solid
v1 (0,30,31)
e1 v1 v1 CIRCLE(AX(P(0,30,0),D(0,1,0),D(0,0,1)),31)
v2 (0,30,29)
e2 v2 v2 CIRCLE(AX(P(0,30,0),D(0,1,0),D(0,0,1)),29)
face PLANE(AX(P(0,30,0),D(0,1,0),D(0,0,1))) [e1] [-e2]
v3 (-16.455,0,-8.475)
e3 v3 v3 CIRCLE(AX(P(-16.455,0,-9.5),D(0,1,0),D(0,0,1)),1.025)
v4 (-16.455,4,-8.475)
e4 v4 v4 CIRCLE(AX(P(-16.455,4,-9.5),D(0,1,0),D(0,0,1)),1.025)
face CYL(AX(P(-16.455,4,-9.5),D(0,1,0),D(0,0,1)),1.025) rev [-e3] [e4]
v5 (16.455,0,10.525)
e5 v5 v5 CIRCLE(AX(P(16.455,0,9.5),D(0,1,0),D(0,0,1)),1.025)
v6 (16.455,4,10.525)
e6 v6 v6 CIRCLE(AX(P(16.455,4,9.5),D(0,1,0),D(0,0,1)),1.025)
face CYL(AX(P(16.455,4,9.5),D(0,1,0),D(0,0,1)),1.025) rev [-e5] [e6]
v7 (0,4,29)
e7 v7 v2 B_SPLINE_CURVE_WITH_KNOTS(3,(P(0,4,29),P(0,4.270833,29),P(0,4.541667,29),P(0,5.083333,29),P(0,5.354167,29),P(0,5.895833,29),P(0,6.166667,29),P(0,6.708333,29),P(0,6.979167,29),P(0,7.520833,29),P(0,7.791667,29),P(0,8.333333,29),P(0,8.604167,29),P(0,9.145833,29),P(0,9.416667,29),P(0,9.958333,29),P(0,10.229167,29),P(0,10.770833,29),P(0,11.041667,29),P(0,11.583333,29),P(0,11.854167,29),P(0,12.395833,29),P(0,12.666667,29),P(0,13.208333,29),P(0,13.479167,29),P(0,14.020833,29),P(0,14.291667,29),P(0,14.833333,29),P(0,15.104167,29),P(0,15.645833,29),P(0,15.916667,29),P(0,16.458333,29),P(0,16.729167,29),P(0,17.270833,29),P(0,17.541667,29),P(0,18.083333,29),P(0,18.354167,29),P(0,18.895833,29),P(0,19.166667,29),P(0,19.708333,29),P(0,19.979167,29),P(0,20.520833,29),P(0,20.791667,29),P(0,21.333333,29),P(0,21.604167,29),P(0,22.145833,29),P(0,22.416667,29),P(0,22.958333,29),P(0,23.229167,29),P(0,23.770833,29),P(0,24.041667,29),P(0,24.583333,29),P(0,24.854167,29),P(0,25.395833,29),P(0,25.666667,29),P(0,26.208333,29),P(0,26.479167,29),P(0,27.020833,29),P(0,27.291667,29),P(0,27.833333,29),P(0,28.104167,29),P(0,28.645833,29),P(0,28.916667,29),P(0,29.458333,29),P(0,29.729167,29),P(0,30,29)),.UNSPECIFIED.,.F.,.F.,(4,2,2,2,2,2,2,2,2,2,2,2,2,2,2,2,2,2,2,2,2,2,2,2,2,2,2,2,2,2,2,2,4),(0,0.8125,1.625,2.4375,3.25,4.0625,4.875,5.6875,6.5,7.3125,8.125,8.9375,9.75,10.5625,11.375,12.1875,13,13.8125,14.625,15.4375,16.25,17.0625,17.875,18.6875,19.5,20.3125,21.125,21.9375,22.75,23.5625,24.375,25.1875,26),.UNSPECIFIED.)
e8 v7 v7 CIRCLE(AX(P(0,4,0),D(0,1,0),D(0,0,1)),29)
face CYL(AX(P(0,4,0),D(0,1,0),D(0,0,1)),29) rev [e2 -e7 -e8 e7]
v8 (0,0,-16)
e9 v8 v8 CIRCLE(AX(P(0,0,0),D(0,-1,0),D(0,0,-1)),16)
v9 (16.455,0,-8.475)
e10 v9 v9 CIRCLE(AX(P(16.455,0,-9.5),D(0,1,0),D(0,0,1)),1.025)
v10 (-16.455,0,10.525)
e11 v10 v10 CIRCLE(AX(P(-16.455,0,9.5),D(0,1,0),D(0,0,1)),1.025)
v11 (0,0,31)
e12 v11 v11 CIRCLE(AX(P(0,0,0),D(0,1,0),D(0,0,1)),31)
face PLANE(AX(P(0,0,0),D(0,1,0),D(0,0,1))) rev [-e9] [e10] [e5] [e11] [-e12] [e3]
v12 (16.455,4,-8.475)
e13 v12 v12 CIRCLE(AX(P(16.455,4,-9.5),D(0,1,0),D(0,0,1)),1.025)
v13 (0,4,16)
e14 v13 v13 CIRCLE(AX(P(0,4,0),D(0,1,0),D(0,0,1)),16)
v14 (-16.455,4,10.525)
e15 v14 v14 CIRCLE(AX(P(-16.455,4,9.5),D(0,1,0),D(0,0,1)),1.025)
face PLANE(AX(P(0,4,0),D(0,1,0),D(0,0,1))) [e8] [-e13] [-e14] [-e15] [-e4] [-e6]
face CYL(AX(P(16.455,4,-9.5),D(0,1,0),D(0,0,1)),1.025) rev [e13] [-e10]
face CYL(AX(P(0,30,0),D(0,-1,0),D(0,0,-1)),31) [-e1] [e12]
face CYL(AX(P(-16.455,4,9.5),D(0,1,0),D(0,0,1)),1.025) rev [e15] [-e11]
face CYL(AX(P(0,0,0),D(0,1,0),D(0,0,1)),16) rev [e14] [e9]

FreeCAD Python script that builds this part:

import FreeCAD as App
import Part
import Sketcher
from FreeCAD import Vector

doc = App.newDocument("Part")
body = doc.addObject("PartDesign::Body", "Body")

sketch1 = doc.addObject("Sketcher::SketchObject", "Sketch")
body.addObject(sketch1)
sketch1.AttachmentSupport = (doc.XZ_Plane, [""])
sketch1.MapMode = "FlatFace"
sketch1.addGeometry(Part.Circle(Vector(0, 0, 0), Vector(0, 0, 1), 31), False)
sketch1.addConstraint([
    Sketcher.Constraint("Coincident", 0, 3, -1, 1),
    Sketcher.Constraint("Diameter", 0, 62.0),
])
pad1 = doc.addObject("PartDesign::Pad", "Pad")
body.addObject(pad1)
pad1.Profile = sketch1
pad1.Length = 30
pad1.Reversed = True

sketch2 = doc.addObject("Sketcher::SketchObject", "Sketch001")
body.addObject(sketch2)
sketch2.AttachmentSupport = (doc.XZ_Plane, [""])
sketch2.MapMode = "FlatFace"
sketch2.AttachmentOffset = App.Placement(Vector(0, 0, -5), App.Rotation())
sketch2.addGeometry(Part.Circle(Vector(0, 0, 0), Vector(0, 0, 1), 16), False)
sketch2.addConstraint([
    Sketcher.Constraint("Coincident", 0, 3, -1, 1),
    Sketcher.Constraint("Diameter", 0, 32.0),
])
pocket1 = doc.addObject("PartDesign::Pocket", "Pocket")
body.addObject(pocket1)
pocket1.Profile = sketch2
pocket1.Type = "ThroughAll"
pocket1.Midplane = True

sketch3 = doc.addObject("Sketcher::SketchObject", "Sketch002")
body.addObject(sketch3)
sketch3.AttachmentSupport = (doc.XZ_Plane, [""])
sketch3.MapMode = "FlatFace"
sketch3.AttachmentOffset = App.Placement(Vector(0, 0, -30), App.Rotation())
sketch3.addGeometry(Part.Circle(Vector(0, 0, 0), Vector(0, 0, 1), 29), False)
sketch3.addConstraint([
    Sketcher.Constraint("Coincident", 0, 3, -1, 1),
    Sketcher.Constraint("Diameter", 0, 58.0),
])
pocket2 = doc.addObject("PartDesign::Pocket", "Pocket001")
body.addObject(pocket2)
pocket2.Profile = sketch3
pocket2.Length = 26
pocket2.Reversed = True

sketch4 = doc.addObject("Sketcher::SketchObject", "Sketch003")
body.addObject(sketch4)
sketch4.AttachmentSupport = (doc.XZ_Plane, [""])
sketch4.MapMode = "FlatFace"
sketch4.AttachmentOffset = App.Placement(Vector(0, 0, -4), App.Rotation())
sketch4.addGeometry([
    Part.Circle(Vector(-16.5, -9.5, 0), Vector(0, 0, 1), 1),
    Part.Circle(Vector(16.5, -9.5, 0), Vector(0, 0, 1), 1),
    Part.Circle(Vector(16.5, 9.5, 0), Vector(0, 0, 1), 1),
    Part.Circle(Vector(-16.5, 9.5, 0), Vector(0, 0, 1), 1),
], False)
sketch4.addConstraint([
    Sketcher.Constraint("Equal", 0, 1),
    Sketcher.Constraint("Equal", 1, 2),
    Sketcher.Constraint("Equal", 2, 3),
    Sketcher.Constraint("Symmetric", 0, 3, 2, 3, -1, 1),
    Sketcher.Constraint("Symmetric", 1, 3, 3, 3, -1, 1),
    Sketcher.Constraint("Symmetric", 0, 3, 1, 3, -2),
    Sketcher.Constraint("Diameter", 0, 2.05),
    Sketcher.Constraint("DistanceY", 1, 3, 2, 3, 19.0),
    Sketcher.Constraint("DistanceX", 0, 3, 1, 3, 32.91),
])
doc.recompute()
hole = doc.addObject("PartDesign::Hole", "Hole")
body.addObject(hole)
hole.Profile = sketch4
hole.ThreadType = "None"
hole.Diameter = 2.05
hole.DepthType = "ThroughAll"
hole.Reversed = True

doc.recompute()
